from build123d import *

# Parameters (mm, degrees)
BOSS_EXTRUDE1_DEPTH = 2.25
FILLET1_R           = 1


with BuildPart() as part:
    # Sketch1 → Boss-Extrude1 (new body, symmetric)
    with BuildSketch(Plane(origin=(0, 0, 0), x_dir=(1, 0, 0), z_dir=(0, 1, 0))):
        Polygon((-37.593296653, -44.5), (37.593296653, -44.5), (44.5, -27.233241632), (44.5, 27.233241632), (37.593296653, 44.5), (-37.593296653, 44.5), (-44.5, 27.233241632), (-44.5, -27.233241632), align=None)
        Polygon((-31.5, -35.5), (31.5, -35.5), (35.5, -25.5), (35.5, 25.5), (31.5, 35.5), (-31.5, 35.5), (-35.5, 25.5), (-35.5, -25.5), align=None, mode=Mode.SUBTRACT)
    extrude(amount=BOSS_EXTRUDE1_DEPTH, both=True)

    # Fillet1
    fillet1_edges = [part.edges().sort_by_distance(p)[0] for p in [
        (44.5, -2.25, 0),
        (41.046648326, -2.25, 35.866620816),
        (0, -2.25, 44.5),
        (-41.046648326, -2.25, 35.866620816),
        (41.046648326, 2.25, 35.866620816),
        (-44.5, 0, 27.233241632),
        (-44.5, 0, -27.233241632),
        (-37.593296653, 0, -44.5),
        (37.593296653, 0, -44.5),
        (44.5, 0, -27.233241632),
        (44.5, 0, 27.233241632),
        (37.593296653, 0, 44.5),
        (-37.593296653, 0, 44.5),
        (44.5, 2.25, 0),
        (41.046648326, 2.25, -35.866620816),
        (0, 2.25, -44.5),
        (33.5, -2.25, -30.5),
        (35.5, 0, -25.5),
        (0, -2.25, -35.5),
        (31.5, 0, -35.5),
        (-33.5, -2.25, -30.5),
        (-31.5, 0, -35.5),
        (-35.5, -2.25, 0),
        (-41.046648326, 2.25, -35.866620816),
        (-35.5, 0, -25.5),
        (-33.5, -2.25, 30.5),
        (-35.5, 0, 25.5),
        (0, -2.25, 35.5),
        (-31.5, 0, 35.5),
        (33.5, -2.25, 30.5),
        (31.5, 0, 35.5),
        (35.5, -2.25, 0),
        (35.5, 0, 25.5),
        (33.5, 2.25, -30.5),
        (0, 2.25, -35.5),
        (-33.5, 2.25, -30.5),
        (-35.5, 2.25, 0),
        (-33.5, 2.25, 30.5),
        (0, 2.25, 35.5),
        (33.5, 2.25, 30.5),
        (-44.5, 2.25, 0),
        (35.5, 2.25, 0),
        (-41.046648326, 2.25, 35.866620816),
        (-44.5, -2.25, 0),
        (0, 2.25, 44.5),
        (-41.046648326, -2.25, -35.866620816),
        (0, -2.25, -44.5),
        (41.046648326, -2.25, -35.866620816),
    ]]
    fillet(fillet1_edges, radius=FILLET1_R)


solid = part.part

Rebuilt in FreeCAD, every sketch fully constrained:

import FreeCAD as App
import Part
import Sketcher
Q = App.Units.Quantity

doc = App.newDocument("Part")
body = doc.addObject("PartDesign::Body", "Body")

sketch1 = doc.addObject("Sketcher::SketchObject", "Sketch")
body.addObject(sketch1)
sketch1.AttachmentSupport = (doc.XZ_Plane, [""])
sketch1.MapMode = "FlatFace"
sketch1.addGeometry([
    Part.LineSegment(App.Vector(-37.593297, 44.5, 0), App.Vector(37.593297, 44.5, 0)),
    Part.LineSegment(App.Vector(37.593297, 44.5, 0), App.Vector(44.5, 27.233242, 0)),
    Part.LineSegment(App.Vector(44.5, 27.233242, 0), App.Vector(44.5, -27.233242, 0)),
    Part.LineSegment(App.Vector(44.5, -27.233242, 0), App.Vector(37.593297, -44.5, 0)),
    Part.LineSegment(App.Vector(37.593297, -44.5, 0), App.Vector(-37.593297, -44.5, 0)),
    Part.LineSegment(App.Vector(-37.593297, -44.5, 0), App.Vector(-44.5, -27.233242, 0)),
    Part.LineSegment(App.Vector(-44.5, -27.233242, 0), App.Vector(-44.5, 27.233242, 0)),
    Part.LineSegment(App.Vector(-44.5, 27.233242, 0), App.Vector(-37.593297, 44.5, 0)),
    Part.LineSegment(App.Vector(31.5, 35.5, 0), App.Vector(-31.5, 35.5, 0)),
    Part.LineSegment(App.Vector(-31.5, 35.5, 0), App.Vector(-35.5, 25.5, 0)),
    Part.LineSegment(App.Vector(-35.5, 25.5, 0), App.Vector(-35.5, -25.5, 0)),
    Part.LineSegment(App.Vector(-35.5, -25.5, 0), App.Vector(-31.5, -35.5, 0)),
    Part.LineSegment(App.Vector(-31.5, -35.5, 0), App.Vector(31.5, -35.5, 0)),
    Part.LineSegment(App.Vector(31.5, -35.5, 0), App.Vector(35.5, -25.5, 0)),
    Part.LineSegment(App.Vector(35.5, -25.5, 0), App.Vector(35.5, 25.5, 0)),
    Part.LineSegment(App.Vector(35.5, 25.5, 0), App.Vector(31.5, 35.5, 0)),
], False)
sketch1.addConstraint([
    Sketcher.Constraint("Coincident", 0, 2, 1, 1),
    Sketcher.Constraint("Coincident", 1, 2, 2, 1),
    Sketcher.Constraint("Coincident", 2, 2, 3, 1),
    Sketcher.Constraint("Coincident", 3, 2, 4, 1),
    Sketcher.Constraint("Coincident", 4, 2, 5, 1),
    Sketcher.Constraint("Coincident", 5, 2, 6, 1),
    Sketcher.Constraint("Coincident", 6, 2, 7, 1),
    Sketcher.Constraint("Coincident", 7, 2, 0, 1),
    Sketcher.Constraint("Coincident", 8, 2, 9, 1),
    Sketcher.Constraint("Coincident", 9, 2, 10, 1),
    Sketcher.Constraint("Coincident", 10, 2, 11, 1),
    Sketcher.Constraint("Coincident", 11, 2, 12, 1),
    Sketcher.Constraint("Coincident", 12, 2, 13, 1),
    Sketcher.Constraint("Coincident", 13, 2, 14, 1),
    Sketcher.Constraint("Coincident", 14, 2, 15, 1),
    Sketcher.Constraint("Coincident", 15, 2, 8, 1),
    Sketcher.Constraint("Horizontal", 0),
    Sketcher.Constraint("Vertical", 2),
    Sketcher.Constraint("Horizontal", 4),
    Sketcher.Constraint("Vertical", 6),
    Sketcher.Constraint("Horizontal", 8),
    Sketcher.Constraint("Vertical", 10),
    Sketcher.Constraint("Horizontal", 12),
    Sketcher.Constraint("Vertical", 14),
    Sketcher.Constraint("Symmetric", 0, 2, 4, 2, -1, 1),
    Sketcher.Constraint("Symmetric", 1, 2, 5, 2, -1, 1),
    Sketcher.Constraint("Symmetric", 8, 2, 12, 2, -1, 1),
    Sketcher.Constraint("Symmetric", 9, 2, 13, 2, -1, 1),
    Sketcher.Constraint("Parallel", 3, 7),
    Sketcher.Constraint("Parallel", 7, 9),
    Sketcher.Constraint("Parallel", 5, 11),
    Sketcher.Constraint("Parallel", 11, 15),
    Sketcher.Constraint("Horizontal", 2, 2, 5, 2),
    Sketcher.Constraint("Horizontal", 1, 2, 6, 2),
    Sketcher.Constraint("Horizontal", 10, 2, 13, 2),
    Sketcher.Constraint("Horizontal", 9, 2, 14, 2),
    Sketcher.Constraint("Vertical", 0, 2, 3, 2),
    Sketcher.Constraint("DistanceX", 8, 2, 8, 1, Q("63 mm")),
    Sketcher.Constraint("DistanceY", 10, 2, 10, 1, Q("51 mm")),
    Sketcher.Constraint("DistanceY", 3, 2, 0, 2, Q("89 mm")),
    Sketcher.Constraint("DistanceX", 5, 2, 2, 2, Q("89 mm")),
    Sketcher.Constraint("DistanceY", 8, 2, 7, 2, Q("9 mm")),
    Sketcher.Constraint("DistanceX", 6, 2, 9, 2, Q("9 mm")),
    Sketcher.Constraint("DistanceX", 0, 1, 0, 2, Q("75.186593 mm")),
])
pad1 = doc.addObject("PartDesign::Pad", "Pad")
body.addObject(pad1)
pad1.Profile = sketch1
pad1.Length = 4.5
pad1.Midplane = True
doc.recompute()

fillet = doc.addObject("PartDesign::Fillet", "Fillet")
body.addObject(fillet)
fillet.Base = (pad1, ["Edge1"])
fillet.UseAllEdges = True
fillet.Radius = 1

doc.recompute()
